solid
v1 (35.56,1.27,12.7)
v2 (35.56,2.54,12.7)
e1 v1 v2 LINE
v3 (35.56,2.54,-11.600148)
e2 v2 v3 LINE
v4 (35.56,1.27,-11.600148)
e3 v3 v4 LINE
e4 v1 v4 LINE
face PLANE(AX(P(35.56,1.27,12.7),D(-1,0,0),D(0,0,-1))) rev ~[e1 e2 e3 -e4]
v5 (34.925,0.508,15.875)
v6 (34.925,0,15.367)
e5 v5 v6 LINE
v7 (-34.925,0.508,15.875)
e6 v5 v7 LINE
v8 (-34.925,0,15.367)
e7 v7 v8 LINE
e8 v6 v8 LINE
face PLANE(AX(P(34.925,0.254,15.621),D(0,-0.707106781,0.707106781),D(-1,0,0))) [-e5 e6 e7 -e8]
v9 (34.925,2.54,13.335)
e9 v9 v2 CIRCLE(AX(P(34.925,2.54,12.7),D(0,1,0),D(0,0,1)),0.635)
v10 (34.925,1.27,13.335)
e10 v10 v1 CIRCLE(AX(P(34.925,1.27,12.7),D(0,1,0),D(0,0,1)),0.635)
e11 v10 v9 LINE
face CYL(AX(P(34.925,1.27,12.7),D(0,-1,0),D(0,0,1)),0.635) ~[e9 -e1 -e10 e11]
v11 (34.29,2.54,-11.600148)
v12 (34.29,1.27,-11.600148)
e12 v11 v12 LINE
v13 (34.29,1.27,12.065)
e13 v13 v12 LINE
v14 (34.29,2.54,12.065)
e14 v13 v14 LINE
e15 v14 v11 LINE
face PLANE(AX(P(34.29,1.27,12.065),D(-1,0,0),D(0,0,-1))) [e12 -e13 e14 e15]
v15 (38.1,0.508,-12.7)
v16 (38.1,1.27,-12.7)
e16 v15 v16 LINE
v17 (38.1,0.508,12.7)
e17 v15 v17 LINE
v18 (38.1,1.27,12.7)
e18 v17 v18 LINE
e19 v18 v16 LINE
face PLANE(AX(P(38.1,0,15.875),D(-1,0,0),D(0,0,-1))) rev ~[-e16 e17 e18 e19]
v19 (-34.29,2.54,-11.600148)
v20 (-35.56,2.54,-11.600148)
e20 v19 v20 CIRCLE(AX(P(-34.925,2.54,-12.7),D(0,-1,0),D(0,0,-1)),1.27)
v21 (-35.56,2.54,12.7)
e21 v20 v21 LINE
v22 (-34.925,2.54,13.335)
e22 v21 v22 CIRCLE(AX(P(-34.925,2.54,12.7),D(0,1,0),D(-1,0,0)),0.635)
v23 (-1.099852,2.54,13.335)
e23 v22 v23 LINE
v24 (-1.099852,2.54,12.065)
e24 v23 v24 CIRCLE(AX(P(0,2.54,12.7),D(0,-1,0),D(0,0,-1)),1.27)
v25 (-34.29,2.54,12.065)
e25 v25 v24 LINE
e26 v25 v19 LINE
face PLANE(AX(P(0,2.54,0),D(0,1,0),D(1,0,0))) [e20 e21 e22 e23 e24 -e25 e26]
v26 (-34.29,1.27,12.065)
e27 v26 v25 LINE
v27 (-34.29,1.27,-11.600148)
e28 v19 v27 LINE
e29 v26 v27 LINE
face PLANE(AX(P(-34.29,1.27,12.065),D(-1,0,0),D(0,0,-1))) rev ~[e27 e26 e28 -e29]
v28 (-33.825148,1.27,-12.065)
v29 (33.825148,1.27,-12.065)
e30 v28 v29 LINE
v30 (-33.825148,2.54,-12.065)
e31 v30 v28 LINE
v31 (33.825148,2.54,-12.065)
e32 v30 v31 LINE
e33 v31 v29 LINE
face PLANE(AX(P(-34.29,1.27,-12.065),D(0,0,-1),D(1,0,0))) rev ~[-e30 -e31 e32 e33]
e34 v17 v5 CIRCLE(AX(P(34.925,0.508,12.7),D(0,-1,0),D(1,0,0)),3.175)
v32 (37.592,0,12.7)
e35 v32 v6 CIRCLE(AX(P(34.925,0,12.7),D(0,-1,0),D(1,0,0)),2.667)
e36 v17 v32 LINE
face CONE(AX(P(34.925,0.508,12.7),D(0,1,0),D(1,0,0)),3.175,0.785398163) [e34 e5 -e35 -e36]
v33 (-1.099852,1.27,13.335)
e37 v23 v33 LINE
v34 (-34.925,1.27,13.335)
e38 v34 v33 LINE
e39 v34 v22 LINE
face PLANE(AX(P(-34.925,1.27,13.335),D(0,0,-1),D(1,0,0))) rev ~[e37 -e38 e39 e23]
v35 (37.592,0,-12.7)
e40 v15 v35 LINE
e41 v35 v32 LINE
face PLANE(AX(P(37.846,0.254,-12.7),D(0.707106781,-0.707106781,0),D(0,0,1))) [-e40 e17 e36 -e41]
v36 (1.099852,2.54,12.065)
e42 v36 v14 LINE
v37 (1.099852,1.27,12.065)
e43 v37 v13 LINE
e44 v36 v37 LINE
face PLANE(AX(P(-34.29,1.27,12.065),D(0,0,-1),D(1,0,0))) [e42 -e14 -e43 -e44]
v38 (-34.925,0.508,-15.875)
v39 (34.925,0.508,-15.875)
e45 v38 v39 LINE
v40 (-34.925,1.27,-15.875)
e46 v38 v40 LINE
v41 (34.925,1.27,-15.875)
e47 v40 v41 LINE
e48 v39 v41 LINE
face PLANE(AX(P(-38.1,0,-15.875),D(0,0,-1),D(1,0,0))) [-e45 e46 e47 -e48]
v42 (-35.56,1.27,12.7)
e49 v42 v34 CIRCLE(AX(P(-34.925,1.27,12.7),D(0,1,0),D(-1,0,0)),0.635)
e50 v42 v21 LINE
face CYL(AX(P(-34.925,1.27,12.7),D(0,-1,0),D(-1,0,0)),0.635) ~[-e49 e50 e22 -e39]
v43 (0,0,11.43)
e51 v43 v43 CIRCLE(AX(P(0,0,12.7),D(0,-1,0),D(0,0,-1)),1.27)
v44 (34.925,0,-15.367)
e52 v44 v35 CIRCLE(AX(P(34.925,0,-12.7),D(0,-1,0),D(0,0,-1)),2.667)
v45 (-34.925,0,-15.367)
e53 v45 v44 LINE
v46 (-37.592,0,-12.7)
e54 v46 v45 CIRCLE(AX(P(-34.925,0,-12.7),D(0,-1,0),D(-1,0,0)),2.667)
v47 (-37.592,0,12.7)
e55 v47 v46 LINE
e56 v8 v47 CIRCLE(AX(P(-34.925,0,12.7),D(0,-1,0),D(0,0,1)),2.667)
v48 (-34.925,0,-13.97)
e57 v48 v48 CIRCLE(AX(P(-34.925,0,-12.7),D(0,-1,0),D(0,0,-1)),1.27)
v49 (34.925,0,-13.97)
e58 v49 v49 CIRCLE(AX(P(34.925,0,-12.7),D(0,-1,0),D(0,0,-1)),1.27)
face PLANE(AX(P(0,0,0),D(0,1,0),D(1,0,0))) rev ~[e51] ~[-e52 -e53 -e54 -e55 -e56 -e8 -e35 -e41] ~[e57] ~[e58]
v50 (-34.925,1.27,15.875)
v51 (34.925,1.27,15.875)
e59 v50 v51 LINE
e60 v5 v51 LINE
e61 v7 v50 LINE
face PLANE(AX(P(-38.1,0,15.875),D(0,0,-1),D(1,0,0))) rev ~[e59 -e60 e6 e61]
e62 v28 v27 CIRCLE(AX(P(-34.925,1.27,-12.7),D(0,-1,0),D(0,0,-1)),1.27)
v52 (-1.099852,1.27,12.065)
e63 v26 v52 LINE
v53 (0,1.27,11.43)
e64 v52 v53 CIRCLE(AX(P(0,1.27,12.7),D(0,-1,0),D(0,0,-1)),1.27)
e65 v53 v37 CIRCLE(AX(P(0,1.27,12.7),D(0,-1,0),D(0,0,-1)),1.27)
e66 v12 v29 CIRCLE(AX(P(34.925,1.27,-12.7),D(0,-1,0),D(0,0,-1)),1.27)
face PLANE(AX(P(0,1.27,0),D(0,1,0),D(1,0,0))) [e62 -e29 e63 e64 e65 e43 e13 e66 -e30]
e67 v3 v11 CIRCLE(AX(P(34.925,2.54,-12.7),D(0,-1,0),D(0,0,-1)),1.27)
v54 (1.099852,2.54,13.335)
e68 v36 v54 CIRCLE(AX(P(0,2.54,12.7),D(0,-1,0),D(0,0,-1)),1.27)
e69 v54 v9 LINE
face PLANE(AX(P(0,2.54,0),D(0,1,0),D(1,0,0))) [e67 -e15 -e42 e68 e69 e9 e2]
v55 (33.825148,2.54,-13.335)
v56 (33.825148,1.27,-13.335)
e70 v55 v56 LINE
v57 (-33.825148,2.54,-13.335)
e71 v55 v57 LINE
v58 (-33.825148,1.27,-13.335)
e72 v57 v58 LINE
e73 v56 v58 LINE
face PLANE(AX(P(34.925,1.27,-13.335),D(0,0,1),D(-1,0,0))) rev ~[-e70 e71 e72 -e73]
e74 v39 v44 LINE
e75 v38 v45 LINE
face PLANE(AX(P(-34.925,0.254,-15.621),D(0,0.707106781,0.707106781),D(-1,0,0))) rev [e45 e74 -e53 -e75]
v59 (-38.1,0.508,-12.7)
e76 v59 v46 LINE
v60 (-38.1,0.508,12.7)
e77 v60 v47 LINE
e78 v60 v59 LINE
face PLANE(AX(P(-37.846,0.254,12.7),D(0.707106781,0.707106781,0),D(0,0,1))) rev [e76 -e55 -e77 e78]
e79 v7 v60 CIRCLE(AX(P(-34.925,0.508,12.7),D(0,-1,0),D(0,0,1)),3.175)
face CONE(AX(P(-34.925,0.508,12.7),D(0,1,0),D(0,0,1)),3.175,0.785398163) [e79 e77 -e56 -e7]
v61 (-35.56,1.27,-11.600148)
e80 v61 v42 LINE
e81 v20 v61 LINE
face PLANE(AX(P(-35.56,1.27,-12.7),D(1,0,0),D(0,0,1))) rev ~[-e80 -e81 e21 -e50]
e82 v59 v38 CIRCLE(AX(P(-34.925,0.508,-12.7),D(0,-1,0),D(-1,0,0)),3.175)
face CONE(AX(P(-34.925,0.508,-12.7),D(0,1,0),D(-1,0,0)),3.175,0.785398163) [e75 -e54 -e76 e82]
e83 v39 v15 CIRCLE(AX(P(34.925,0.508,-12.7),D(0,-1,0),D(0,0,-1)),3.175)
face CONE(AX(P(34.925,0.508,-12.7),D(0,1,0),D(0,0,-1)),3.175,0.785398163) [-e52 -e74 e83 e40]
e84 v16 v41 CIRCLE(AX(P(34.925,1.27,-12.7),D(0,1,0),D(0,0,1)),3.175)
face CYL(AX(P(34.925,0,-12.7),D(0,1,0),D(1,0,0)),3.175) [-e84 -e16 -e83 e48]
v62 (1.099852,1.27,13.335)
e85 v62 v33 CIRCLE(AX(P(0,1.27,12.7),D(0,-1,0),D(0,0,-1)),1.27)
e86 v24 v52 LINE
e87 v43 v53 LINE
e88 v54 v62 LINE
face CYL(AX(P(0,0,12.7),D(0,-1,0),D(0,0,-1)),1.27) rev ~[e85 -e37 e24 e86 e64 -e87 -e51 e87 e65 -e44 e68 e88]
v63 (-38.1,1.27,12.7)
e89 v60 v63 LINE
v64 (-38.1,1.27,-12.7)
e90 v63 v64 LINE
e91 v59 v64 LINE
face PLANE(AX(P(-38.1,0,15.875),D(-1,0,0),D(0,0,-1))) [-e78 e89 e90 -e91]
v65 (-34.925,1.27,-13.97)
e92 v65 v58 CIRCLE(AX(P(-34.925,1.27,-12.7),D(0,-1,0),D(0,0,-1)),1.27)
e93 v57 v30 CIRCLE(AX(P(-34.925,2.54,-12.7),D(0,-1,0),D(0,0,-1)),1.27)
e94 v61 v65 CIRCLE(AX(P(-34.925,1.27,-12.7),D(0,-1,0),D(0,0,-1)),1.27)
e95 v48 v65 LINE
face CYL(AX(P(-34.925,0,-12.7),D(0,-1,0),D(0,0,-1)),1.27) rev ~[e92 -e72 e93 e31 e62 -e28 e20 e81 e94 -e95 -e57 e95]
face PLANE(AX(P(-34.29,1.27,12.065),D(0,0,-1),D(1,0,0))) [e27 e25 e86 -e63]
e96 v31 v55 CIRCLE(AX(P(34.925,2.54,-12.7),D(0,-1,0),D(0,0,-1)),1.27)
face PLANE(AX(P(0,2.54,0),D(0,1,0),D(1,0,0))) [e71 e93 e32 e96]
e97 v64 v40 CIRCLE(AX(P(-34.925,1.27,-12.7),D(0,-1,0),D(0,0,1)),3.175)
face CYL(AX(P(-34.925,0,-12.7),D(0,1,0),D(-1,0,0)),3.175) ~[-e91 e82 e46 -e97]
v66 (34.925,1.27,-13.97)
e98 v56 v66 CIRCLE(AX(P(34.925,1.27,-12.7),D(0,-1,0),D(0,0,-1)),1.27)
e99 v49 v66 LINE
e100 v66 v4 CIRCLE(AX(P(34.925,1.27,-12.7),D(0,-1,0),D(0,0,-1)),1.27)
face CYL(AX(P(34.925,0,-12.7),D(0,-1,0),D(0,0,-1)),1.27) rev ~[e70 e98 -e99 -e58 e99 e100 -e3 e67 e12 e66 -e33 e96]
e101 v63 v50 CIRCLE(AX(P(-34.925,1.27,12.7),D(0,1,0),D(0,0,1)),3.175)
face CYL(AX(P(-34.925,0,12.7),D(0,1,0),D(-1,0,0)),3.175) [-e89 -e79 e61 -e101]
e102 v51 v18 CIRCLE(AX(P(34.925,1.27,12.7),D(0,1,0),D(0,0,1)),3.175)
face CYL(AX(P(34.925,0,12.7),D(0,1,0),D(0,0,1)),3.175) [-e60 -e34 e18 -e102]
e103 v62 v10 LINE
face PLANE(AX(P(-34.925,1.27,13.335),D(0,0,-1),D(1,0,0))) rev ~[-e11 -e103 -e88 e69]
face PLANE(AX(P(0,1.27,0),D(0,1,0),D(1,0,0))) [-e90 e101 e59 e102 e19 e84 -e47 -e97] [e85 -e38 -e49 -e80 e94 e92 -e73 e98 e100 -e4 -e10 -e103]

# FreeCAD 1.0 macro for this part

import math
import FreeCAD as App
import Part
import Sketcher
Q = App.Units.Quantity


def edges_at(feature, points):
    """Names of the edges that pass closest to the given points."""
    edges = feature.Shape.Edges
    near = lambda p: min(range(len(edges)), key=lambda i: edges[i].distToShape(Part.Vertex(*p))[0])
    return sorted({f"Edge{near(p) + 1}" for p in points})

doc = App.newDocument("Part")
body = doc.addObject("PartDesign::Body", "Body")

# Sketch on XZ plane
sketch1 = body.newObject("Sketcher::SketchObject", "Sketch")
sketch1.AttachmentSupport = (doc.getObject("XZ_Plane"), [""])
sketch1.MapMode = "FlatFace"
sketch1.addGeometry([
    Part.LineSegment(App.Vector(-38, -16, 0), App.Vector(-38, 16, 0)),
    Part.LineSegment(App.Vector(-38, 16, 0), App.Vector(38, 16, 0)),
    Part.LineSegment(App.Vector(38, 16, 0), App.Vector(38, -16, 0)),
    Part.LineSegment(App.Vector(38, -16, 0), App.Vector(-38, -16, 0)),
], False)
sketch1.addConstraint([
    Sketcher.Constraint("Coincident", 0, 2, 1, 1),
    Sketcher.Constraint("Coincident", 1, 2, 2, 1),
    Sketcher.Constraint("Coincident", 2, 2, 3, 1),
    Sketcher.Constraint("Coincident", 3, 2, 0, 1),
    Sketcher.Constraint("Vertical", 0),
    Sketcher.Constraint("Horizontal", 1),
    Sketcher.Constraint("Vertical", 2),
    Sketcher.Constraint("Horizontal", 3),
    Sketcher.Constraint("Symmetric", 0, 2, 2, 2, -1, 1),
    Sketcher.Constraint("DistanceX", 1, 1, 1, 2, Q("3 in")),
    Sketcher.Constraint("DistanceY", 0, 1, 0, 2, Q("1.25 in")),
])
pad1 = body.newObject("PartDesign::Pad", "Pad")
pad1.Profile = sketch1
pad1.Length = Q("0.05 in")
pad1.Reversed = True
doc.recompute()

fillet = body.newObject("PartDesign::Fillet", "Fillet")
fillet.Base = (pad1, edges_at(pad1, [
    (-38.1, 0.635, -15.875),
    (38.1, 0.635, -15.875),
    (38.1, 0.635, 15.875),
    (-38.1, 0.635, 15.875),
]))
fillet.Radius = Q("0.125 in")

# Sketch on XZ plane
sketch2 = body.newObject("Sketcher::SketchObject", "Sketch001")
sketch2.AttachmentSupport = (doc.getObject("XZ_Plane"), [""])
sketch2.MapMode = "FlatFace"
sketch2.AttachmentOffset = App.Placement(App.Vector(0, 0, -0.05 * 25.4), App.Rotation())
sketch2.addGeometry([
    Part.LineSegment(App.Vector(34.9, -13.3, 0), App.Vector(-34.9, -13.3, 0)),  # 0
    Part.ArcOfCircle(Part.Circle(App.Vector(-34.9, -12.7, 0), App.Vector(0, 0, 1), 0.6), math.radians(180), math.radians(270)),  # 1
    Part.LineSegment(App.Vector(-35.6, -12.7, 0), App.Vector(-35.6, 12.7, 0)),  # 2
    Part.ArcOfCircle(Part.Circle(App.Vector(-34.9, 12.7, 0), App.Vector(0, 0, 1), 0.6), math.radians(90), math.radians(180)),  # 3
    Part.LineSegment(App.Vector(-34.9, 13.3, 0), App.Vector(34.9, 13.3, 0)),  # 4
    Part.ArcOfCircle(Part.Circle(App.Vector(34.9, 12.7, 0), App.Vector(0, 0, 1), 0.6), math.radians(0), math.radians(90)),  # 5
    Part.LineSegment(App.Vector(35.6, 12.7, 0), App.Vector(35.6, -12.7, 0)),  # 6
    Part.ArcOfCircle(Part.Circle(App.Vector(34.9, -12.7, 0), App.Vector(0, 0, 1), 0.6), math.radians(-90), math.radians(0)),  # 7
    Part.LineSegment(App.Vector(34.3, 12.1, 0), App.Vector(-34.3, 12.1, 0)),  # 8
    Part.LineSegment(App.Vector(-34.3, 12.1, 0), App.Vector(-34.3, -12.1, 0)),  # 9
    Part.LineSegment(App.Vector(-34.3, -12.1, 0), App.Vector(34.3, -12.1, 0)),  # 10
    Part.LineSegment(App.Vector(34.3, -12.1, 0), App.Vector(34.3, 12.1, 0)),  # 11
], False)
sketch2.addConstraint([
    Sketcher.Constraint("Tangent", 0, 2, 1, 2),
    Sketcher.Constraint("Tangent", 1, 1, 2, 1),
    Sketcher.Constraint("Tangent", 2, 2, 3, 2),
    Sketcher.Constraint("Tangent", 3, 1, 4, 1),
    Sketcher.Constraint("Tangent", 4, 2, 5, 2),
    Sketcher.Constraint("Tangent", 5, 1, 6, 1),
    Sketcher.Constraint("Tangent", 6, 2, 7, 2),
    Sketcher.Constraint("Tangent", 7, 1, 0, 1),
    Sketcher.Constraint("Coincident", 8, 2, 9, 1),
    Sketcher.Constraint("Coincident", 9, 2, 10, 1),
    Sketcher.Constraint("Coincident", 10, 2, 11, 1),
    Sketcher.Constraint("Coincident", 11, 2, 8, 1),
    Sketcher.Constraint("Horizontal", 0),
    Sketcher.Constraint("Vertical", 2),
    Sketcher.Constraint("Horizontal", 4),
    Sketcher.Constraint("Vertical", 6),
    Sketcher.Constraint("Horizontal", 8),
    Sketcher.Constraint("Vertical", 9),
    Sketcher.Constraint("Horizontal", 10),
    Sketcher.Constraint("Vertical", 11),
    Sketcher.Constraint("Equal", 1, 3),
    Sketcher.Constraint("Equal", 3, 5),
    Sketcher.Constraint("Equal", 5, 7),
    Sketcher.Constraint("Symmetric", 1, 3, 5, 3, -1, 1),
    Sketcher.Constraint("Symmetric", 8, 2, 10, 2, -1, 1),
    Sketcher.Constraint("DistanceY", 2, 1, 2, 2, Q("1 in")),
    Sketcher.Constraint("DistanceX", 8, 2, 8, 1, Q("2.7 in")),
    Sketcher.Constraint("Radius", 1, Q("0.025 in")),
    Sketcher.Constraint("DistanceX", 0, 2, 0, 1, Q("2.75 in")),
    Sketcher.Constraint("DistanceY", 9, 2, 9, 1, Q("0.95 in")),
])
pad2 = body.newObject("PartDesign::Pad", "Pad001")
pad2.Profile = sketch2
pad2.Length = Q("0.05 in")
pad2.Reversed = True

# Sketch on XZ plane
sketch3 = body.newObject("Sketcher::SketchObject", "Sketch002")
sketch3.AttachmentSupport = (doc.getObject("XZ_Plane"), [""])
sketch3.MapMode = "FlatFace"
sketch3.addGeometry([
    Part.Circle(App.Vector(34.9, -12.7, 0), App.Vector(0, 0, 1), 1.3),
    Part.Circle(App.Vector(0, 12.7, 0), App.Vector(0, 0, 1), 1.3),
    Part.Circle(App.Vector(-34.9, -12.7, 0), App.Vector(0, 0, 1), 1.3),
], False)
sketch3.addConstraint([
    Sketcher.Constraint("Equal", 0, 1),
    Sketcher.Constraint("Equal", 1, 2),
    Sketcher.Constraint("Symmetric", 0, 3, 2, 3, -2),
    Sketcher.Constraint("PointOnObject", 1, 3, -2),
    Sketcher.Constraint("Diameter", 0, Q("0.1 in")),
    Sketcher.Constraint("DistanceY", 0, 3, 1, 3, Q("1 in")),
    Sketcher.Constraint("DistanceY", 0, 3, -1, 1, Q("0.5 in")),
    Sketcher.Constraint("DistanceX", 2, 3, 0, 3, Q("2.75 in")),
])
pocket1 = body.newObject("PartDesign::Pocket", "Pocket")
pocket1.Profile = sketch3
pocket1.Type = "ThroughAll"
doc.recompute()

chamfer = body.newObject("PartDesign::Chamfer", "Chamfer")
chamfer.Base = (pocket1, edges_at(pocket1, [
    (-38.1, 0, 0),
    (0, 0, -15.875),
    (38.1, 0, 0),
    (0, 0, 15.875),
    (-37.17, 0, 14.945),
    (37.17, 0, 14.945),
    (37.17, 0, -14.945),
    (-37.17, 0, -14.945),
]))
chamfer.Size = Q("0.02 in")

doc.recompute()
